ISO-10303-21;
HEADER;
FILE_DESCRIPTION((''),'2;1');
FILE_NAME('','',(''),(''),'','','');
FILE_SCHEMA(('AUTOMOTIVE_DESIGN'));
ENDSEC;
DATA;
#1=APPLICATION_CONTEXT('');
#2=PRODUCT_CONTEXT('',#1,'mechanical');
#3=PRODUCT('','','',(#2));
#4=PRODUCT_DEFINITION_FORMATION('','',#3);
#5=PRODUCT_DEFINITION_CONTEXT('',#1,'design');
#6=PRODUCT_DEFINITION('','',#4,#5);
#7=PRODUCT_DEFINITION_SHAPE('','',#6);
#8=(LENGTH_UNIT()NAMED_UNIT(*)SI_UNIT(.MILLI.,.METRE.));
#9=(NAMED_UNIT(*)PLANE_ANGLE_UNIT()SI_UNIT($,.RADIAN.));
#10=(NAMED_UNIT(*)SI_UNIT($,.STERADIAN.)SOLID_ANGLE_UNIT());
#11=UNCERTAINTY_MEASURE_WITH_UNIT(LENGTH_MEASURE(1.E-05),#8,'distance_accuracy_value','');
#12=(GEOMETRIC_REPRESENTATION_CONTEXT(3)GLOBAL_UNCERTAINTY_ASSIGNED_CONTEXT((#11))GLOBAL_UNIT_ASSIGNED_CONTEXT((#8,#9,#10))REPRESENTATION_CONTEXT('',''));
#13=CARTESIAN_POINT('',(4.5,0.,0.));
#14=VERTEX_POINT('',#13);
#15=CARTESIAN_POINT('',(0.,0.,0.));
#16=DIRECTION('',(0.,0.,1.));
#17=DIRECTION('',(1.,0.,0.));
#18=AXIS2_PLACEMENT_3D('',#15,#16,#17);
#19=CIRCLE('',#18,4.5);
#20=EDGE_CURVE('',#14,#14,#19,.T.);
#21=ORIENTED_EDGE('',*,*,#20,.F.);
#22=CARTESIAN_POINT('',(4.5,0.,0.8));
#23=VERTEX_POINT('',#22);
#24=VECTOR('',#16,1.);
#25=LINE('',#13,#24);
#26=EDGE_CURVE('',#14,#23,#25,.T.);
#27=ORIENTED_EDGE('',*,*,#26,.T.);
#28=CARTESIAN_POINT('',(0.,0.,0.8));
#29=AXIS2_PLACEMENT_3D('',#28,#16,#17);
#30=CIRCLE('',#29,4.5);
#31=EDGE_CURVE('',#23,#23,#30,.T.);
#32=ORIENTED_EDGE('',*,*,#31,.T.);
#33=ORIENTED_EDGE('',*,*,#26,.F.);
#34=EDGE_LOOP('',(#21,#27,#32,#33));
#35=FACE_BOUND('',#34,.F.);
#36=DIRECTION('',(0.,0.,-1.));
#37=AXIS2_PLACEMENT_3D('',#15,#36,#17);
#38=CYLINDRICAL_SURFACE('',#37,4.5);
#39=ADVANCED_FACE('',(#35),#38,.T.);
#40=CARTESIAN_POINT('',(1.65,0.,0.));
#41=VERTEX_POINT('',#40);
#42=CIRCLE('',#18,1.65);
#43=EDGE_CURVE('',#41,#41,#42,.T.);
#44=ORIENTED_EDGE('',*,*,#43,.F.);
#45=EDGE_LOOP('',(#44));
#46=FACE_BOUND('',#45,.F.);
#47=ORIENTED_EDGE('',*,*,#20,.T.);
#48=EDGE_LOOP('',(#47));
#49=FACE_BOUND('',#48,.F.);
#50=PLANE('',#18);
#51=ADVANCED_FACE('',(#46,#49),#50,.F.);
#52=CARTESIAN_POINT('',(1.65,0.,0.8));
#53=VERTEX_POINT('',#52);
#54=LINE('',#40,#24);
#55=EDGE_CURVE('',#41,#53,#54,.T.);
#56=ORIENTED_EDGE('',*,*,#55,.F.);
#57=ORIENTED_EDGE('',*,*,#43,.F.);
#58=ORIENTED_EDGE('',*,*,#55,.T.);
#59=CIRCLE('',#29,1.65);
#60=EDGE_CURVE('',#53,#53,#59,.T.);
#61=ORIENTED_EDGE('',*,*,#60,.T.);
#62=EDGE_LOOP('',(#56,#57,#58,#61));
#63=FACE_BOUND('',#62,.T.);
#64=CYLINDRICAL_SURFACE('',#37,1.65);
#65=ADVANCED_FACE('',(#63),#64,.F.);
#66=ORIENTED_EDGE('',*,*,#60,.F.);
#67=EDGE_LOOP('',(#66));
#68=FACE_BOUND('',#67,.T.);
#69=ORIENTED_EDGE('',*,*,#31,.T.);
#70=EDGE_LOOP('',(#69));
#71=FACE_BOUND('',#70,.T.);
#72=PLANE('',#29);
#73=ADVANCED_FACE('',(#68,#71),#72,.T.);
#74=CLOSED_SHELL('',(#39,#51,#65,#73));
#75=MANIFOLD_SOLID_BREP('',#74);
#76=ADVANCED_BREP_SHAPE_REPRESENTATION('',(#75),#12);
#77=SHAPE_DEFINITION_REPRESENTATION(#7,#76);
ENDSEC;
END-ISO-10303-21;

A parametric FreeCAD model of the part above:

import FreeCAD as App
import Part
import Sketcher
from FreeCAD import Vector

doc = App.newDocument("Part")
body = doc.addObject("PartDesign::Body", "Body")

# Sketch on XY plane
sketch1 = body.newObject("Sketcher::SketchObject", "Sketch")
sketch1.AttachmentSupport = (doc.getObject("XY_Plane"), [""])
sketch1.MapMode = "FlatFace"
sketch1.addGeometry([
    Part.Circle(Vector(0, 0, 0), Vector(0, 0, 1), 4.5),
    Part.Circle(Vector(0, 0, 0), Vector(0, 0, 1), 1.6),
], False)
sketch1.addConstraint([
    Sketcher.Constraint("Coincident", 0, 3, -1, 1),
    Sketcher.Constraint("Coincident", 1, 3, -1, 1),
    Sketcher.Constraint("Diameter", 0, 9.0),
    Sketcher.Constraint("Diameter", 1, 3.3),
])
pad1 = body.newObject("PartDesign::Pad", "Pad")
pad1.Profile = sketch1
pad1.Length = 0.8

doc.recompute()
